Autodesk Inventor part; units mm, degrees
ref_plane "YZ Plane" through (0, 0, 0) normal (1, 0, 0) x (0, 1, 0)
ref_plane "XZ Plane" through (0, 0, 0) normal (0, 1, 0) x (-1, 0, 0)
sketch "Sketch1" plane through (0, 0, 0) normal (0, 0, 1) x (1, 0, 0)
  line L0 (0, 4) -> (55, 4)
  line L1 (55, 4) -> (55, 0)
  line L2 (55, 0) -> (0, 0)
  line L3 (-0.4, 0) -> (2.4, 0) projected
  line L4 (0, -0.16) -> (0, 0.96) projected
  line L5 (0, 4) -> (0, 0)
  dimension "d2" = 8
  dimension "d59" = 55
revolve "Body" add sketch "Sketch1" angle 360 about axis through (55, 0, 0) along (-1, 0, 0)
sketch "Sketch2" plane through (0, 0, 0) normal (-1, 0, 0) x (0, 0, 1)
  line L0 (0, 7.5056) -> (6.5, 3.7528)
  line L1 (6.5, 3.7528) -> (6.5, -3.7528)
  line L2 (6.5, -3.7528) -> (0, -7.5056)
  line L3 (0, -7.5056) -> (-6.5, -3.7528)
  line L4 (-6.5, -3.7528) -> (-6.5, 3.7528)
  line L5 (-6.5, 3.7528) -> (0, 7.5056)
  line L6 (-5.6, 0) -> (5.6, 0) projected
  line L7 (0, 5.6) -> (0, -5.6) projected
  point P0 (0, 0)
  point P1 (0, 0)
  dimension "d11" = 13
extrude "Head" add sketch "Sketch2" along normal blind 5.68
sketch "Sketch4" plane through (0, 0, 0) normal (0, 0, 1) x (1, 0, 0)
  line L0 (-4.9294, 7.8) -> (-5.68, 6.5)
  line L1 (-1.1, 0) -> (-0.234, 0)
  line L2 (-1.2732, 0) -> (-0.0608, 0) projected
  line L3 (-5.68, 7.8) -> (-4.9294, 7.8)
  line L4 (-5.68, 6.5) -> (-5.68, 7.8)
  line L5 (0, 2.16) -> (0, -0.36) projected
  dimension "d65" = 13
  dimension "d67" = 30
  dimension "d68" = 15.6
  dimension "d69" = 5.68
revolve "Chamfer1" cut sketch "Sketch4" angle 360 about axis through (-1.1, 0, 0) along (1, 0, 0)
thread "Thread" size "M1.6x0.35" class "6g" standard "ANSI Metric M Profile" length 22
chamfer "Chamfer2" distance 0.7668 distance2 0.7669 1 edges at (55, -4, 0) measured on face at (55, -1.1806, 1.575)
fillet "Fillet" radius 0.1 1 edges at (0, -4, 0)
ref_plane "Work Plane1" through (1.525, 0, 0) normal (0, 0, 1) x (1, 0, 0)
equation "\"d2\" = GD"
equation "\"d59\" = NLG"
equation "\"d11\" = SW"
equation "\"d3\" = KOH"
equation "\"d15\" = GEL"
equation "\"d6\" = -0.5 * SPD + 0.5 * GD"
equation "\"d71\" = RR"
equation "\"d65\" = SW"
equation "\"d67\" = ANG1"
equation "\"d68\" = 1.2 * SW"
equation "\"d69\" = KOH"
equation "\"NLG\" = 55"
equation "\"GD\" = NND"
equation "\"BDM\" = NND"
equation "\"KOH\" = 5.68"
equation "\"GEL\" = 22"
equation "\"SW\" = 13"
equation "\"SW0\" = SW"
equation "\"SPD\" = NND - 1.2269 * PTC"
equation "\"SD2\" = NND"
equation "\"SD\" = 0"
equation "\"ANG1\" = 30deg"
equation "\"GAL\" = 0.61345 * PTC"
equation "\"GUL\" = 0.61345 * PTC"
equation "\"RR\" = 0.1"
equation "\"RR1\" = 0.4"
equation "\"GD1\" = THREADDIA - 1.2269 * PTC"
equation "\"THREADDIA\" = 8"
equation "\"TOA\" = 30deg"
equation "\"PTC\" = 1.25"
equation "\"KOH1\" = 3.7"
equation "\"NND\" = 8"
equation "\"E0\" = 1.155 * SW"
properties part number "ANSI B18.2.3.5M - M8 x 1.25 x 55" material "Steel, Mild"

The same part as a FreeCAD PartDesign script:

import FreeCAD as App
import Part
import Sketcher

V = App.Vector
Q = App.Units.Quantity


def edges_at(feature, points):
    """Names of the edges that pass closest to the given points."""
    edges = feature.Shape.Edges
    near = lambda p: min(range(len(edges)), key=lambda i: edges[i].distToShape(Part.Vertex(*p))[0])
    return sorted({f"Edge{near(p) + 1}" for p in points})

doc = App.newDocument("Part")
params = doc.addObject("Spreadsheet::Sheet", "Params")
for row, (alias, value) in enumerate([
    ("sketch1_width", "55 mm"),
    ("sketch1_height", "4 mm"),
    ("revolution_angle", "360 deg"),
    ("pad1_length", "5.68 mm"),
    ("sketch3_height", "1.3 mm"),
    ("groove_angle", "360 deg"),
    ("chamfer_size", "0.7668 mm"),
    ("chamfer_size2", "0.7669 mm"),
    ("fillet_radius", "0.1 mm"),
], start=1):
    params.set(f"A{row}", alias)
    params.set(f"B{row}", "=" + value)
    params.setAlias(f"B{row}", alias)

body = doc.addObject("PartDesign::Body", "Body")

sketch1 = doc.addObject("Sketcher::SketchObject", "Sketch")
body.addObject(sketch1)
sketch1.AttachmentSupport = (doc.XY_Plane, [""])
sketch1.MapMode = "FlatFace"
sketch1.addGeometry([
    Part.LineSegment(V(55, 4, 0), V(0, 4, 0)),
    Part.LineSegment(V(0, 4, 0), V(0, 0, 0)),
    Part.LineSegment(V(0, 0, 0), V(55, 0, 0)),
    Part.LineSegment(V(55, 0, 0), V(55, 4, 0)),
], False)
sketch1.addConstraint([
    Sketcher.Constraint("Coincident", 0, 2, 1, 1),
    Sketcher.Constraint("Coincident", 1, 2, 2, 1),
    Sketcher.Constraint("Coincident", 2, 2, 3, 1),
    Sketcher.Constraint("Coincident", 3, 2, 0, 1),
    Sketcher.Constraint("Horizontal", 0),
    Sketcher.Constraint("Vertical", 1),
    Sketcher.Constraint("Horizontal", 2),
    Sketcher.Constraint("Vertical", 3),
    Sketcher.Constraint("Coincident", 1, 2, -1, 1),
    Sketcher.Constraint("DistanceX", 0, 2, 0, 1, Q("55 mm")),
    Sketcher.Constraint("DistanceY", 1, 2, 1, 1, Q("4 mm")),
])
sketch1.setExpression("Constraints[9]", "Params.sketch1_width")
sketch1.setExpression("Constraints[10]", "Params.sketch1_height")
revolution = doc.addObject("PartDesign::Revolution", "Revolution")
body.addObject(revolution)
revolution.Profile = sketch1
revolution.ReferenceAxis = (sketch1, ["H_Axis"])
revolution.setExpression("Angle", "Params.revolution_angle")

sketch2 = doc.addObject("Sketcher::SketchObject", "Sketch001")
body.addObject(sketch2)
sketch2.AttachmentSupport = (doc.YZ_Plane, [""])
sketch2.MapMode = "FlatFace"
sketch2.addGeometry([
    Part.LineSegment(V(3.7528, 6.5, 0), V(7.5056, 0, 0)),
    Part.LineSegment(V(7.5056, 0, 0), V(3.7528, -6.5, 0)),
    Part.LineSegment(V(3.7528, -6.5, 0), V(-3.7528, -6.5, 0)),
    Part.LineSegment(V(-3.7528, -6.5, 0), V(-7.5056, 0, 0)),
    Part.LineSegment(V(-7.5056, 0, 0), V(-3.7528, 6.5, 0)),
    Part.LineSegment(V(-3.7528, 6.5, 0), V(3.7528, 6.5, 0)),
], False)
sketch2.addConstraint([
    Sketcher.Constraint("Coincident", 0, 2, 1, 1),
    Sketcher.Constraint("Coincident", 1, 2, 2, 1),
    Sketcher.Constraint("Coincident", 2, 2, 3, 1),
    Sketcher.Constraint("Coincident", 3, 2, 4, 1),
    Sketcher.Constraint("Coincident", 4, 2, 5, 1),
    Sketcher.Constraint("Coincident", 5, 2, 0, 1),
    Sketcher.Constraint("Horizontal", 2),
    Sketcher.Constraint("Horizontal", 5),
    Sketcher.Constraint("Symmetric", 0, 2, 3, 2, -1, 1),
    Sketcher.Constraint("Symmetric", 1, 2, 4, 2, -1, 1),
    Sketcher.Constraint("PointOnObject", 0, 2, -1),
    Sketcher.Constraint("Parallel", 0, 3),
    Sketcher.Constraint("Vertical", 2, 2, 4, 2),
    Sketcher.Constraint("DistanceY", 2, 2, 4, 2, Q("13 mm")),
    Sketcher.Constraint("Angle", 0, Q("-59.9998 deg")),
    Sketcher.Constraint("DistanceX", 2, 2, 2, 1, Q("7.5056 mm")),
])
pad1 = doc.addObject("PartDesign::Pad", "Pad")
body.addObject(pad1)
pad1.Profile = sketch2
pad1.setExpression("Length", "Params.pad1_length")
pad1.Reversed = True

sketch3 = doc.addObject("Sketcher::SketchObject", "Sketch002")
body.addObject(sketch3)
sketch3.AttachmentSupport = (doc.XY_Plane, [""])
sketch3.MapMode = "FlatFace"
sketch3.addGeometry([
    Part.LineSegment(V(-5.68, 6.5, 0), V(-4.9294, 7.8, 0)),
    Part.LineSegment(V(-4.9294, 7.8, 0), V(-5.68, 7.8, 0)),
    Part.LineSegment(V(-5.68, 7.8, 0), V(-5.68, 6.5, 0)),
], False)
sketch3.addConstraint([
    Sketcher.Constraint("Coincident", 0, 2, 1, 1),
    Sketcher.Constraint("Coincident", 1, 2, 2, 1),
    Sketcher.Constraint("Coincident", 2, 2, 0, 1),
    Sketcher.Constraint("Horizontal", 1),
    Sketcher.Constraint("Vertical", 2),
    Sketcher.Constraint("DistanceX", 1, 2, -1, 1, Q("5.68 mm")),
    Sketcher.Constraint("DistanceY", 2, 2, 2, 1, Q("1.3 mm")),
    Sketcher.Constraint("DistanceY", -1, 1, 0, 2, Q("7.8 mm")),
    Sketcher.Constraint("DistanceX", 1, 2, 1, 1, Q("0.7506 mm")),
])
sketch3.setExpression("Constraints[6]", "Params.sketch3_height")
groove = doc.addObject("PartDesign::Groove", "Groove")
body.addObject(groove)
groove.Profile = sketch3
groove.ReferenceAxis = (sketch3, ["H_Axis"])
groove.setExpression("Angle", "Params.groove_angle")
doc.recompute()

chamfer = doc.addObject("PartDesign::Chamfer", "Chamfer")
body.addObject(chamfer)
chamfer.Base = (groove, edges_at(groove, [(55, -4, 0)]))
chamfer.ChamferType = "Two distances"
chamfer.setExpression("Size", "Params.chamfer_size")
chamfer.setExpression("Size2", "Params.chamfer_size2")
doc.recompute()

fillet = doc.addObject("PartDesign::Fillet", "Fillet")
body.addObject(fillet)
fillet.Base = (chamfer, edges_at(chamfer, [(0, -4, 0)]))
fillet.setExpression("Radius", "Params.fillet_radius")

doc.recompute()
